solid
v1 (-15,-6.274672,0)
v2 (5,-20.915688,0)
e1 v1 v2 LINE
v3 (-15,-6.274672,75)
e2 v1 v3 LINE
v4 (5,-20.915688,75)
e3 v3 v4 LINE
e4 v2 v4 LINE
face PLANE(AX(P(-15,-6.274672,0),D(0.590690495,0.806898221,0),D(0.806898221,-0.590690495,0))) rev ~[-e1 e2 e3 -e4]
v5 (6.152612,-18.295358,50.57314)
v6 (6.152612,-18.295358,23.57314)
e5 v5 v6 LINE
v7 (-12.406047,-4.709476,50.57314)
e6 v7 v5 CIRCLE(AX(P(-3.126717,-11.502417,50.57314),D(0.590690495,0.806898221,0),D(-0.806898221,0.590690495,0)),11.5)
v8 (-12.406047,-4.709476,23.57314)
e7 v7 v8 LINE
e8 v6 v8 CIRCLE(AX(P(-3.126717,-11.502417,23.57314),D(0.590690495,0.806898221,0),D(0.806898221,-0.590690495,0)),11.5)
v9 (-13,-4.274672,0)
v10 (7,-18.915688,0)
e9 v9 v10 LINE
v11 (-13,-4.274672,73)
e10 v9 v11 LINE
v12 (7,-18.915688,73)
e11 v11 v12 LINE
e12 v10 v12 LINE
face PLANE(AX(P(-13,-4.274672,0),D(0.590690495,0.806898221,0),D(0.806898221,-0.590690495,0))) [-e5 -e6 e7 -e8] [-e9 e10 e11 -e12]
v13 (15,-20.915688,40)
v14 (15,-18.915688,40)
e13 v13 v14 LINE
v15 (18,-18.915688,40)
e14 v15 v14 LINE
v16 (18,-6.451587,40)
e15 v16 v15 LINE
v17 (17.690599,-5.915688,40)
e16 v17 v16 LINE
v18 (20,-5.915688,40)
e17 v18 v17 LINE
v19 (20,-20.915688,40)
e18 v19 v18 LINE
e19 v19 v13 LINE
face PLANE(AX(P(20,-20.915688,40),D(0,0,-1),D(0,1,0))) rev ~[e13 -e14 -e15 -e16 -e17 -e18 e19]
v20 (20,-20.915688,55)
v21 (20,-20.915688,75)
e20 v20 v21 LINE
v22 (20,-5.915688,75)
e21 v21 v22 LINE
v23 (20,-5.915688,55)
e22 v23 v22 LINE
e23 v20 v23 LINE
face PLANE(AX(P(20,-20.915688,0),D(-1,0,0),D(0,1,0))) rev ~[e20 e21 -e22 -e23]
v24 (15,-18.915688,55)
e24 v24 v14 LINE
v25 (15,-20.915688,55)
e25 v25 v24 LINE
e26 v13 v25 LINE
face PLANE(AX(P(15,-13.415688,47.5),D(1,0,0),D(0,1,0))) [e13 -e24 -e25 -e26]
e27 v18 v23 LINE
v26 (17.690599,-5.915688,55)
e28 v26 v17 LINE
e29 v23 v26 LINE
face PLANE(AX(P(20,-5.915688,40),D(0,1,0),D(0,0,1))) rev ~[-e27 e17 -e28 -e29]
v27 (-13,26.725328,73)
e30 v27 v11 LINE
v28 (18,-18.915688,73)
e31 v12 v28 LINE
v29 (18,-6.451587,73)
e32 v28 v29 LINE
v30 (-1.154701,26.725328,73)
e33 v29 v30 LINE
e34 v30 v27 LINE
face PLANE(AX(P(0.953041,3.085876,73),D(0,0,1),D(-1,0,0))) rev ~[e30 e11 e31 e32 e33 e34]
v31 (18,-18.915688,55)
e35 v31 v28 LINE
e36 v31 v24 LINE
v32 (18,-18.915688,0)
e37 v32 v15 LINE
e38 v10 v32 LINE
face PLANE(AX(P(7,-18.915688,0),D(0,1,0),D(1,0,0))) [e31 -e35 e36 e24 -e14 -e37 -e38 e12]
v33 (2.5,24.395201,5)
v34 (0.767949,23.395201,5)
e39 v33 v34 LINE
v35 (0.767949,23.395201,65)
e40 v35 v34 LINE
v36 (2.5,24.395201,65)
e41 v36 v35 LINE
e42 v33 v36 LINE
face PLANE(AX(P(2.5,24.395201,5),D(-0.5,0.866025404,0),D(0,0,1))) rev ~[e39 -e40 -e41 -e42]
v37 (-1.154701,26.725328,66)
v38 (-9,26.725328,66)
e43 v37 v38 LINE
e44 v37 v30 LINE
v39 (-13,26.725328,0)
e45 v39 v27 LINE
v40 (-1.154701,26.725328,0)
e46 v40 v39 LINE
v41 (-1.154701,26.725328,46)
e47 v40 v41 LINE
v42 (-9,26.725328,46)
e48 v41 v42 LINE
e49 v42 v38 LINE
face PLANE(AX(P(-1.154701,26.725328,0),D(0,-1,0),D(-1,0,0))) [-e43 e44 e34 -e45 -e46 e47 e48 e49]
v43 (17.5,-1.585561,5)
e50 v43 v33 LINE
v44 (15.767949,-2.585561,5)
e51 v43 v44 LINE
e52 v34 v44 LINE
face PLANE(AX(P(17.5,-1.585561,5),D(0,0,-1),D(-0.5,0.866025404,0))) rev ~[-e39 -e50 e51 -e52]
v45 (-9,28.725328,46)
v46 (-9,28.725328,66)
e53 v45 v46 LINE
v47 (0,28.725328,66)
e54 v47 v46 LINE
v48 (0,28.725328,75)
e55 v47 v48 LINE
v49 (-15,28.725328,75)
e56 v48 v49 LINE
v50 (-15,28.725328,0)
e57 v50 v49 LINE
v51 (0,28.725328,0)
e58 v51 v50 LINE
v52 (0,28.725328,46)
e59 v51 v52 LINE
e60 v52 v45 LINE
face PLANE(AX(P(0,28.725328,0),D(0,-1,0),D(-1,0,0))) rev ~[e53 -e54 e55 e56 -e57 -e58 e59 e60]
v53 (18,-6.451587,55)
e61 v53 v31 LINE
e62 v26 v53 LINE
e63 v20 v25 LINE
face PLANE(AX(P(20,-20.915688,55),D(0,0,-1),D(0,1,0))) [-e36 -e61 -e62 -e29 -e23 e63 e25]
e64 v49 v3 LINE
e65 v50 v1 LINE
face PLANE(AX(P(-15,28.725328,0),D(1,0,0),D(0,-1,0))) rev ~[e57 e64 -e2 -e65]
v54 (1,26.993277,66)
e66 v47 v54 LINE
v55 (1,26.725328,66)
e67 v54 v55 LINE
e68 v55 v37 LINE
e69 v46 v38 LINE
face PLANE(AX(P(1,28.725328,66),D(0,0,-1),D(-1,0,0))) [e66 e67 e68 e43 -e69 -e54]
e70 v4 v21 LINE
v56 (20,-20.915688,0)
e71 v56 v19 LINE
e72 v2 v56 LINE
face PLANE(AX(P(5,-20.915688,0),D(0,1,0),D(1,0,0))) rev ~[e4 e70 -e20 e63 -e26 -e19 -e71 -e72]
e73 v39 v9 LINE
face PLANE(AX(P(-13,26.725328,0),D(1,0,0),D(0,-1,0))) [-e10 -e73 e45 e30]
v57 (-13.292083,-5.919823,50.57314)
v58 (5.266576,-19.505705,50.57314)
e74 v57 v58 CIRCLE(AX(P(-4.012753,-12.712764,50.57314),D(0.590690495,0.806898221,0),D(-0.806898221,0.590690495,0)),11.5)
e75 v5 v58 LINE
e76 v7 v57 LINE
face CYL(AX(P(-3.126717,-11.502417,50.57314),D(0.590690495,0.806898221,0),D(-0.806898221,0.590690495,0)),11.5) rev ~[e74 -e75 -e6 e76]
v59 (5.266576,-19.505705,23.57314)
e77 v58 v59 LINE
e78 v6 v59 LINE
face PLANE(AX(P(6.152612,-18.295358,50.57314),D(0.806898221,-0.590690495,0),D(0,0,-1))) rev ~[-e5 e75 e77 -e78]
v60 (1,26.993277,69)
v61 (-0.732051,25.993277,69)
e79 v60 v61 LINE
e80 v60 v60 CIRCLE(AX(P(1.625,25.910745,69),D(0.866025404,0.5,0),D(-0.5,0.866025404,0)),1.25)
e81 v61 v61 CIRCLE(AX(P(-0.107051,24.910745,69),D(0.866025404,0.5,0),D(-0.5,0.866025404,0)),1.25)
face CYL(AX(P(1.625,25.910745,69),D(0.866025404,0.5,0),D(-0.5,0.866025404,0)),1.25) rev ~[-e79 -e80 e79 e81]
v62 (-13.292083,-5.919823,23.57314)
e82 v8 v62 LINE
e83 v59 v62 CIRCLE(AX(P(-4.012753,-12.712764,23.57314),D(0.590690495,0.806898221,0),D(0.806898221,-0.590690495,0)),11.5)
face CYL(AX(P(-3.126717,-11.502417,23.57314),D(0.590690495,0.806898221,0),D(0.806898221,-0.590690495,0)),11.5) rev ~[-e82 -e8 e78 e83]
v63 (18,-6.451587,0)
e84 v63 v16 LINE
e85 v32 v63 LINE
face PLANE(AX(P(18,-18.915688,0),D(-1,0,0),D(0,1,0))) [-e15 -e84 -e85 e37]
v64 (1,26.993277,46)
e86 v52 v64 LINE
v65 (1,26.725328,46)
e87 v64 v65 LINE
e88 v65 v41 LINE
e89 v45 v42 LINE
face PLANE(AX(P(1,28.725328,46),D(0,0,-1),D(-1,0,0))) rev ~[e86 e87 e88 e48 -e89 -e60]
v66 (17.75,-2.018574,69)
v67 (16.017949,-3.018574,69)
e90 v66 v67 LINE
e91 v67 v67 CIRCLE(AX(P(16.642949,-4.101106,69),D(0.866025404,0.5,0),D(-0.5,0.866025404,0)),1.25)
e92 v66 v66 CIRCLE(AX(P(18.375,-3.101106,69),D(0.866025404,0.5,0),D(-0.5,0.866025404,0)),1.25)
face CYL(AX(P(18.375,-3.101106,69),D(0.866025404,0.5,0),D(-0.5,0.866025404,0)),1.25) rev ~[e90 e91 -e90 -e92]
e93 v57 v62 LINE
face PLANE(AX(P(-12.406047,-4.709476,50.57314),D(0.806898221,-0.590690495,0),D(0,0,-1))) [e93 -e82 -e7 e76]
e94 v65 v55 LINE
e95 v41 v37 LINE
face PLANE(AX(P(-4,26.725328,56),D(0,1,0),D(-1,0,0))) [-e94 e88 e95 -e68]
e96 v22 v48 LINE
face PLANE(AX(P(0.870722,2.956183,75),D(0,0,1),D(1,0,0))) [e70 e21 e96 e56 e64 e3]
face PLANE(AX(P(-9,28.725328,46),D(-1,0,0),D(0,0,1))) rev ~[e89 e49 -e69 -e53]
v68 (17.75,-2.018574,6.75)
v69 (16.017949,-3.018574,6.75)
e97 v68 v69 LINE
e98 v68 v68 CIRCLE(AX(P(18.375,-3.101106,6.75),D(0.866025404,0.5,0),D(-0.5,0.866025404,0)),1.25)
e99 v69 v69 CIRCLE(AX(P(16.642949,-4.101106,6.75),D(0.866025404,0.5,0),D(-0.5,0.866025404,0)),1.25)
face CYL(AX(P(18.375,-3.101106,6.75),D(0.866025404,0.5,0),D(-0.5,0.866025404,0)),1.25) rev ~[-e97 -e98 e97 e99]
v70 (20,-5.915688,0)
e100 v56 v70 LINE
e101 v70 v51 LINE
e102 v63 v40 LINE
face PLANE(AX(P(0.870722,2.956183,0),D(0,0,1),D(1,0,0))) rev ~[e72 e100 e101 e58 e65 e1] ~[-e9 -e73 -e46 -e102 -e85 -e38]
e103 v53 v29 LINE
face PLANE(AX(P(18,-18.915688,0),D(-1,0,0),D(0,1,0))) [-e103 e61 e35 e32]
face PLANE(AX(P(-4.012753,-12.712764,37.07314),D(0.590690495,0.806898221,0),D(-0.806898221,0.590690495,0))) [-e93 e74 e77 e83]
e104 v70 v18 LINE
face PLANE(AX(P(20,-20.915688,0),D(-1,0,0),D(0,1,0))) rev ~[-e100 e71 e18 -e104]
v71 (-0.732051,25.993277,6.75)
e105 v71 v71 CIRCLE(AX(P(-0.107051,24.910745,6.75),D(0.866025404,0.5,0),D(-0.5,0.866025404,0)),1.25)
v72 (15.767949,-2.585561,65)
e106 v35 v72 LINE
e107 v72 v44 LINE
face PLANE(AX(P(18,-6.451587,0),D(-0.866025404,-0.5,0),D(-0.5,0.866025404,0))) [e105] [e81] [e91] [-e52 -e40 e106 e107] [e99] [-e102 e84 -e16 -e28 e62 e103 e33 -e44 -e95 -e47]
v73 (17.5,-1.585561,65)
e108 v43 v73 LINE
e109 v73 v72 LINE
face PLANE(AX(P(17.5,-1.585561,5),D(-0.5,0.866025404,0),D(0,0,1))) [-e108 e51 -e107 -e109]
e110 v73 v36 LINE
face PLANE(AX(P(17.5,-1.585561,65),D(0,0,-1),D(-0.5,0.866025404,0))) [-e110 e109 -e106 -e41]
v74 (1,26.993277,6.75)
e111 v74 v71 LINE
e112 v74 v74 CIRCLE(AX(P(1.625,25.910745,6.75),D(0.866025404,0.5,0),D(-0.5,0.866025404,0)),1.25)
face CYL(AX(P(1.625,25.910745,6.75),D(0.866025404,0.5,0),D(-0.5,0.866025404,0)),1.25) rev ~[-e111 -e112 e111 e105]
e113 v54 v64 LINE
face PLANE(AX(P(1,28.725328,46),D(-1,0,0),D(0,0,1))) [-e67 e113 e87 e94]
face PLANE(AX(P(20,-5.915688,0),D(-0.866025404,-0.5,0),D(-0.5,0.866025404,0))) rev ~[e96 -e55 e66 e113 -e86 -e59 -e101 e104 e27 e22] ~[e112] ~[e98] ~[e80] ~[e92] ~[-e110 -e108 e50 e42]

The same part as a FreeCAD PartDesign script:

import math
import FreeCAD as App
import Part
import Sketcher
from FreeCAD import Vector
Q = App.Units.Quantity

doc = App.newDocument("Part")
params = doc.addObject("Spreadsheet::Sheet", "Params")
for row, (alias, value) in enumerate([
    ("sketch1_width", "15 mm"),
    ("sketch1_height", "35 mm"),
    ("sketch1_length", "40 mm"),
    ("pad1_length", "75 mm"),
    ("sketch2_width", "11 mm"),
    ("sketch2_height", "31 mm"),
    ("pocket1_length", "73 mm"),
    ("sketch3_diameter", "2.5 mm"),
    ("sketch3_width", "30 mm"),
    ("sketch3_height", "60 mm"),
    ("pocket2_length", "5 mm"),
    ("sketch4_width", "10 mm"),
    ("sketch4_height", "20 mm"),
    ("pocket3_length", "2 mm"),
    ("sketch5_width", "15 mm"),
    ("pocket4_length", "5 mm"),
    ("sketch6_radius", "11.5 mm"),
    ("sketch6_height", "27 mm"),
    ("pocket5_length", "1.5 mm"),
], start=1):
    params.set(f"A{row}", alias)
    params.set(f"B{row}", "=" + value)
    params.setAlias(f"B{row}", alias)

body = doc.addObject("PartDesign::Body", "Body")

sketch1 = doc.addObject("Sketcher::SketchObject", "Sketch")
body.addObject(sketch1)
sketch1.AttachmentSupport = (doc.XY_Plane, [""])
sketch1.MapMode = "FlatFace"
sketch1.addGeometry([
    Part.LineSegment(Vector(-15, 29, 0), Vector(-15, -6, 0)),
    Part.LineSegment(Vector(-15, -6, 0), Vector(5, -21, 0)),
    Part.LineSegment(Vector(5, -21, 0), Vector(20, -21, 0)),
    Part.LineSegment(Vector(20, -21, 0), Vector(20, -6, 0)),
    Part.LineSegment(Vector(20, -6, 0), Vector(0, 29, 0)),
    Part.LineSegment(Vector(0, 29, 0), Vector(-15, 29, 0)),
], False)
sketch1.addConstraint([
    Sketcher.Constraint("Coincident", 0, 2, 1, 1),
    Sketcher.Constraint("Coincident", 1, 2, 2, 1),
    Sketcher.Constraint("Coincident", 2, 2, 3, 1),
    Sketcher.Constraint("Coincident", 3, 2, 4, 1),
    Sketcher.Constraint("Coincident", 4, 2, 5, 1),
    Sketcher.Constraint("Coincident", 5, 2, 0, 1),
    Sketcher.Constraint("Vertical", 0),
    Sketcher.Constraint("Horizontal", 2),
    Sketcher.Constraint("Vertical", 3),
    Sketcher.Constraint("Horizontal", 5),
    Sketcher.Constraint("PointOnObject", 4, 2, -2),
    Sketcher.Constraint("Equal", 2, 5),
    Sketcher.Constraint("Equal", 5, 3),
    Sketcher.Constraint("DistanceX", 2, 1, 2, 2, 15.0),
    Sketcher.Constraint("DistanceY", 0, 2, 0, 1, 35.0),
    Sketcher.Constraint("Angle", 4, Q("120 deg")),
    Sketcher.Constraint("Distance", 4, 40.0),
    Sketcher.Constraint("DistanceY", 1, 2, -1, 1, 20.915688),
])
sketch1.setExpression("Constraints[13]", "Params.sketch1_width")
sketch1.setExpression("Constraints[14]", "Params.sketch1_height")
sketch1.setExpression("Constraints[16]", "Params.sketch1_length")
pad1 = doc.addObject("PartDesign::Pad", "Pad")
body.addObject(pad1)
pad1.Profile = sketch1
pad1.setExpression("Length", "Params.pad1_length")

sketch2 = doc.addObject("Sketcher::SketchObject", "Sketch001")
body.addObject(sketch2)
sketch2.AttachmentSupport = (doc.XY_Plane, [""])
sketch2.MapMode = "FlatFace"
sketch2.addGeometry([
    Part.LineSegment(Vector(7, -19, 0), Vector(-13, -4, 0)),
    Part.LineSegment(Vector(-13, -4, 0), Vector(-13, 27, 0)),
    Part.LineSegment(Vector(-13, 27, 0), Vector(-1, 27, 0)),
    Part.LineSegment(Vector(-1, 27, 0), Vector(18, -6, 0)),
    Part.LineSegment(Vector(18, -6, 0), Vector(18, -19, 0)),
    Part.LineSegment(Vector(18, -19, 0), Vector(7, -19, 0)),
], False)
sketch2.addConstraint([
    Sketcher.Constraint("Coincident", 0, 2, 1, 1),
    Sketcher.Constraint("Coincident", 1, 2, 2, 1),
    Sketcher.Constraint("Coincident", 2, 2, 3, 1),
    Sketcher.Constraint("Coincident", 3, 2, 4, 1),
    Sketcher.Constraint("Coincident", 4, 2, 5, 1),
    Sketcher.Constraint("Coincident", 5, 2, 0, 1),
    Sketcher.Constraint("Vertical", 1),
    Sketcher.Constraint("Horizontal", 2),
    Sketcher.Constraint("Vertical", 4),
    Sketcher.Constraint("Horizontal", 5),
    Sketcher.Constraint("DistanceX", 5, 2, 5, 1, 11.0),
    Sketcher.Constraint("DistanceY", 1, 1, 1, 2, 31.0),
    Sketcher.Constraint("Angle", 3, Q("-60 deg")),
    Sketcher.Constraint("DistanceX", 0, 2, -1, 1, 13.0),
    Sketcher.Constraint("DistanceX", -1, 1, 3, 2, 18.0),
    Sketcher.Constraint("DistanceX", 2, 1, 2, 2, 11.845299),
    Sketcher.Constraint("DistanceY", 4, 2, 4, 1, 12.464102),
    Sketcher.Constraint("DistanceY", 4, 2, -1, 1, 18.915688),
])
sketch2.setExpression("Constraints[10]", "Params.sketch2_width")
sketch2.setExpression("Constraints[11]", "Params.sketch2_height")
pocket1 = doc.addObject("PartDesign::Pocket", "Pocket")
body.addObject(pocket1)
pocket1.Profile = sketch2
pocket1.setExpression("Length", "Params.pocket1_length")
pocket1.Reversed = True

sketch3 = doc.addObject("Sketcher::SketchObject", "Sketch002")
body.addObject(sketch3)
sketch3.Placement = App.Placement(Vector(12.438432, 7.181332, 0), App.Rotation(Vector(-0.5, 0.866025404, 0), Vector(0, 0, 1), Vector(0.866025404, 0.5, 0), "ZXY"))
sketch3.addGeometry([
    Part.Circle(Vector(-11.9, 69, 0), Vector(0, 0, 1), 1.2),
    Part.Circle(Vector(21.6, 6.8, 0), Vector(0, 0, 1), 1.2),
    Part.Circle(Vector(-11.9, 6.8, 0), Vector(0, 0, 1), 1.2),
    Part.Circle(Vector(21.6, 69, 0), Vector(0, 0, 1), 1.2),
    Part.LineSegment(Vector(-10.1, 65, 0), Vector(-10.1, 5, 0)),
    Part.LineSegment(Vector(-10.1, 5, 0), Vector(19.9, 5, 0)),
    Part.LineSegment(Vector(19.9, 5, 0), Vector(19.9, 65, 0)),
    Part.LineSegment(Vector(19.9, 65, 0), Vector(-10.1, 65, 0)),
], False)
sketch3.addConstraint([
    Sketcher.Constraint("Coincident", 4, 2, 5, 1),
    Sketcher.Constraint("Coincident", 5, 2, 6, 1),
    Sketcher.Constraint("Coincident", 6, 2, 7, 1),
    Sketcher.Constraint("Coincident", 7, 2, 4, 1),
    Sketcher.Constraint("Vertical", 4),
    Sketcher.Constraint("Horizontal", 5),
    Sketcher.Constraint("Vertical", 6),
    Sketcher.Constraint("Horizontal", 7),
    Sketcher.Constraint("Equal", 0, 1),
    Sketcher.Constraint("Equal", 1, 2),
    Sketcher.Constraint("Equal", 2, 3),
    Sketcher.Constraint("Horizontal", 1, 3, 2, 3),
    Sketcher.Constraint("Horizontal", 0, 3, 3, 3),
    Sketcher.Constraint("Vertical", 0, 3, 2, 3),
    Sketcher.Constraint("Vertical", 1, 3, 3, 3),
    Sketcher.Constraint("Diameter", 0, 2.5),
    Sketcher.Constraint("DistanceX", 5, 1, 5, 2, 30.0),
    Sketcher.Constraint("DistanceY", 4, 2, 4, 1, 60.0),
    Sketcher.Constraint("DistanceY", -1, 1, 0, 3, 69.0),
    Sketcher.Constraint("DistanceY", -1, 1, 4, 2, 5.0),
    Sketcher.Constraint("DistanceX", 0, 3, 1, 3, 33.5),
    Sketcher.Constraint("DistanceY", -1, 1, 1, 3, 6.75),
    Sketcher.Constraint("DistanceX", 2, 3, 4, 2, 1.75),
    Sketcher.Constraint("DistanceX", 0, 3, -1, 1, 11.873136),
])
sketch3.setExpression("Constraints[15]", "Params.sketch3_diameter")
sketch3.setExpression("Constraints[16]", "Params.sketch3_width")
sketch3.setExpression("Constraints[17]", "Params.sketch3_height")
pocket2 = doc.addObject("PartDesign::Pocket", "Pocket001")
body.addObject(pocket2)
pocket2.Profile = sketch3
pocket2.setExpression("Length", "Params.pocket2_length")

sketch4 = doc.addObject("Sketcher::SketchObject", "Sketch003")
body.addObject(sketch4)
sketch4.AttachmentSupport = (doc.XZ_Plane, [""])
sketch4.MapMode = "FlatFace"
sketch4.AttachmentOffset = App.Placement(Vector(0, 0, -28.725328), App.Rotation())
sketch4.addGeometry([
    Part.LineSegment(Vector(1, 66, 0), Vector(1, 46, 0)),
    Part.LineSegment(Vector(1, 46, 0), Vector(-9, 46, 0)),
    Part.LineSegment(Vector(-9, 46, 0), Vector(-9, 66, 0)),
    Part.LineSegment(Vector(-9, 66, 0), Vector(1, 66, 0)),
], False)
sketch4.addConstraint([
    Sketcher.Constraint("Coincident", 0, 2, 1, 1),
    Sketcher.Constraint("Coincident", 1, 2, 2, 1),
    Sketcher.Constraint("Coincident", 2, 2, 3, 1),
    Sketcher.Constraint("Coincident", 3, 2, 0, 1),
    Sketcher.Constraint("Vertical", 0),
    Sketcher.Constraint("Horizontal", 1),
    Sketcher.Constraint("Vertical", 2),
    Sketcher.Constraint("Horizontal", 3),
    Sketcher.Constraint("DistanceX", 1, 2, 1, 1, 10.0),
    Sketcher.Constraint("DistanceY", 0, 2, 0, 1, 20.0),
    Sketcher.Constraint("DistanceX", -1, 1, 0, 2, 1.0),
    Sketcher.Constraint("DistanceY", -1, 1, 0, 2, 46.0),
])
sketch4.setExpression("Constraints[8]", "Params.sketch4_width")
sketch4.setExpression("Constraints[9]", "Params.sketch4_height")
pocket3 = doc.addObject("PartDesign::Pocket", "Pocket002")
body.addObject(pocket3)
pocket3.Profile = sketch4
pocket3.setExpression("Length", "Params.pocket3_length")
pocket3.Reversed = True

sketch5 = doc.addObject("Sketcher::SketchObject", "Sketch004")
body.addObject(sketch5)
sketch5.AttachmentSupport = (doc.YZ_Plane, [""])
sketch5.MapMode = "FlatFace"
sketch5.AttachmentOffset = App.Placement(Vector(0, 0, 20), App.Rotation())
sketch5.addGeometry([
    Part.LineSegment(Vector(-21, 55, 0), Vector(-21, 40, 0)),
    Part.LineSegment(Vector(-21, 40, 0), Vector(-6, 40, 0)),
    Part.LineSegment(Vector(-6, 40, 0), Vector(-6, 55, 0)),
    Part.LineSegment(Vector(-6, 55, 0), Vector(-21, 55, 0)),
], False)
sketch5.addConstraint([
    Sketcher.Constraint("Coincident", 0, 2, 1, 1),
    Sketcher.Constraint("Coincident", 1, 2, 2, 1),
    Sketcher.Constraint("Coincident", 2, 2, 3, 1),
    Sketcher.Constraint("Coincident", 3, 2, 0, 1),
    Sketcher.Constraint("Vertical", 0),
    Sketcher.Constraint("Horizontal", 1),
    Sketcher.Constraint("Vertical", 2),
    Sketcher.Constraint("Horizontal", 3),
    Sketcher.Constraint("Equal", 3, 0),
    Sketcher.Constraint("DistanceX", 1, 1, 1, 2, 15.0),
    Sketcher.Constraint("DistanceY", -1, 1, 0, 2, 40.0),
    Sketcher.Constraint("DistanceX", 0, 2, -1, 1, 20.915688),
])
sketch5.setExpression("Constraints[9]", "Params.sketch5_width")
pocket4 = doc.addObject("PartDesign::Pocket", "Pocket003")
body.addObject(pocket4)
pocket4.Profile = sketch5
pocket4.setExpression("Length", "Params.pocket4_length")

sketch6 = doc.addObject("Sketcher::SketchObject", "Sketch005")
body.addObject(sketch6)
sketch6.Placement = App.Placement(Vector(-6.573323, -8.979326, 0), App.Rotation(Vector(-0.806898221, 0.590690495, 0), Vector(0, 0, 1), Vector(0.590690495, 0.806898221, 0), "ZXY"))
sketch6.addGeometry([
    Part.ArcOfCircle(Part.Circle(Vector(-4, 51, 0), Vector(0, 0, 1), 12), math.radians(0), math.radians(180)),
    Part.LineSegment(Vector(-16, 51, 0), Vector(-16, 24, 0)),
    Part.ArcOfCircle(Part.Circle(Vector(-4, 24, 0), Vector(0, 0, 1), 12), math.radians(180), math.radians(360)),
    Part.LineSegment(Vector(7, 24, 0), Vector(7, 51, 0)),
], False)
sketch6.addConstraint([
    Sketcher.Constraint("Tangent", 0, 2, 1, 1),
    Sketcher.Constraint("Tangent", 1, 2, 2, 1),
    Sketcher.Constraint("Tangent", 2, 2, 3, 1),
    Sketcher.Constraint("Tangent", 3, 2, 0, 1),
    Sketcher.Constraint("Vertical", 1),
    Sketcher.Constraint("Vertical", 3),
    Sketcher.Constraint("Radius", 0, 11.5),
    Sketcher.Constraint("DistanceY", 1, 2, 1, 1, 27.0),
    Sketcher.Constraint("DistanceY", -1, 1, 0, 3, 50.57314),
    Sketcher.Constraint("DistanceX", 0, 3, -1, 1, 4.271426),
])
sketch6.setExpression("Constraints[6]", "Params.sketch6_radius")
sketch6.setExpression("Constraints[7]", "Params.sketch6_height")
pocket5 = doc.addObject("PartDesign::Pocket", "Pocket004")
body.addObject(pocket5)
pocket5.Profile = sketch6
pocket5.setExpression("Length", "Params.pocket5_length")

doc.recompute()
